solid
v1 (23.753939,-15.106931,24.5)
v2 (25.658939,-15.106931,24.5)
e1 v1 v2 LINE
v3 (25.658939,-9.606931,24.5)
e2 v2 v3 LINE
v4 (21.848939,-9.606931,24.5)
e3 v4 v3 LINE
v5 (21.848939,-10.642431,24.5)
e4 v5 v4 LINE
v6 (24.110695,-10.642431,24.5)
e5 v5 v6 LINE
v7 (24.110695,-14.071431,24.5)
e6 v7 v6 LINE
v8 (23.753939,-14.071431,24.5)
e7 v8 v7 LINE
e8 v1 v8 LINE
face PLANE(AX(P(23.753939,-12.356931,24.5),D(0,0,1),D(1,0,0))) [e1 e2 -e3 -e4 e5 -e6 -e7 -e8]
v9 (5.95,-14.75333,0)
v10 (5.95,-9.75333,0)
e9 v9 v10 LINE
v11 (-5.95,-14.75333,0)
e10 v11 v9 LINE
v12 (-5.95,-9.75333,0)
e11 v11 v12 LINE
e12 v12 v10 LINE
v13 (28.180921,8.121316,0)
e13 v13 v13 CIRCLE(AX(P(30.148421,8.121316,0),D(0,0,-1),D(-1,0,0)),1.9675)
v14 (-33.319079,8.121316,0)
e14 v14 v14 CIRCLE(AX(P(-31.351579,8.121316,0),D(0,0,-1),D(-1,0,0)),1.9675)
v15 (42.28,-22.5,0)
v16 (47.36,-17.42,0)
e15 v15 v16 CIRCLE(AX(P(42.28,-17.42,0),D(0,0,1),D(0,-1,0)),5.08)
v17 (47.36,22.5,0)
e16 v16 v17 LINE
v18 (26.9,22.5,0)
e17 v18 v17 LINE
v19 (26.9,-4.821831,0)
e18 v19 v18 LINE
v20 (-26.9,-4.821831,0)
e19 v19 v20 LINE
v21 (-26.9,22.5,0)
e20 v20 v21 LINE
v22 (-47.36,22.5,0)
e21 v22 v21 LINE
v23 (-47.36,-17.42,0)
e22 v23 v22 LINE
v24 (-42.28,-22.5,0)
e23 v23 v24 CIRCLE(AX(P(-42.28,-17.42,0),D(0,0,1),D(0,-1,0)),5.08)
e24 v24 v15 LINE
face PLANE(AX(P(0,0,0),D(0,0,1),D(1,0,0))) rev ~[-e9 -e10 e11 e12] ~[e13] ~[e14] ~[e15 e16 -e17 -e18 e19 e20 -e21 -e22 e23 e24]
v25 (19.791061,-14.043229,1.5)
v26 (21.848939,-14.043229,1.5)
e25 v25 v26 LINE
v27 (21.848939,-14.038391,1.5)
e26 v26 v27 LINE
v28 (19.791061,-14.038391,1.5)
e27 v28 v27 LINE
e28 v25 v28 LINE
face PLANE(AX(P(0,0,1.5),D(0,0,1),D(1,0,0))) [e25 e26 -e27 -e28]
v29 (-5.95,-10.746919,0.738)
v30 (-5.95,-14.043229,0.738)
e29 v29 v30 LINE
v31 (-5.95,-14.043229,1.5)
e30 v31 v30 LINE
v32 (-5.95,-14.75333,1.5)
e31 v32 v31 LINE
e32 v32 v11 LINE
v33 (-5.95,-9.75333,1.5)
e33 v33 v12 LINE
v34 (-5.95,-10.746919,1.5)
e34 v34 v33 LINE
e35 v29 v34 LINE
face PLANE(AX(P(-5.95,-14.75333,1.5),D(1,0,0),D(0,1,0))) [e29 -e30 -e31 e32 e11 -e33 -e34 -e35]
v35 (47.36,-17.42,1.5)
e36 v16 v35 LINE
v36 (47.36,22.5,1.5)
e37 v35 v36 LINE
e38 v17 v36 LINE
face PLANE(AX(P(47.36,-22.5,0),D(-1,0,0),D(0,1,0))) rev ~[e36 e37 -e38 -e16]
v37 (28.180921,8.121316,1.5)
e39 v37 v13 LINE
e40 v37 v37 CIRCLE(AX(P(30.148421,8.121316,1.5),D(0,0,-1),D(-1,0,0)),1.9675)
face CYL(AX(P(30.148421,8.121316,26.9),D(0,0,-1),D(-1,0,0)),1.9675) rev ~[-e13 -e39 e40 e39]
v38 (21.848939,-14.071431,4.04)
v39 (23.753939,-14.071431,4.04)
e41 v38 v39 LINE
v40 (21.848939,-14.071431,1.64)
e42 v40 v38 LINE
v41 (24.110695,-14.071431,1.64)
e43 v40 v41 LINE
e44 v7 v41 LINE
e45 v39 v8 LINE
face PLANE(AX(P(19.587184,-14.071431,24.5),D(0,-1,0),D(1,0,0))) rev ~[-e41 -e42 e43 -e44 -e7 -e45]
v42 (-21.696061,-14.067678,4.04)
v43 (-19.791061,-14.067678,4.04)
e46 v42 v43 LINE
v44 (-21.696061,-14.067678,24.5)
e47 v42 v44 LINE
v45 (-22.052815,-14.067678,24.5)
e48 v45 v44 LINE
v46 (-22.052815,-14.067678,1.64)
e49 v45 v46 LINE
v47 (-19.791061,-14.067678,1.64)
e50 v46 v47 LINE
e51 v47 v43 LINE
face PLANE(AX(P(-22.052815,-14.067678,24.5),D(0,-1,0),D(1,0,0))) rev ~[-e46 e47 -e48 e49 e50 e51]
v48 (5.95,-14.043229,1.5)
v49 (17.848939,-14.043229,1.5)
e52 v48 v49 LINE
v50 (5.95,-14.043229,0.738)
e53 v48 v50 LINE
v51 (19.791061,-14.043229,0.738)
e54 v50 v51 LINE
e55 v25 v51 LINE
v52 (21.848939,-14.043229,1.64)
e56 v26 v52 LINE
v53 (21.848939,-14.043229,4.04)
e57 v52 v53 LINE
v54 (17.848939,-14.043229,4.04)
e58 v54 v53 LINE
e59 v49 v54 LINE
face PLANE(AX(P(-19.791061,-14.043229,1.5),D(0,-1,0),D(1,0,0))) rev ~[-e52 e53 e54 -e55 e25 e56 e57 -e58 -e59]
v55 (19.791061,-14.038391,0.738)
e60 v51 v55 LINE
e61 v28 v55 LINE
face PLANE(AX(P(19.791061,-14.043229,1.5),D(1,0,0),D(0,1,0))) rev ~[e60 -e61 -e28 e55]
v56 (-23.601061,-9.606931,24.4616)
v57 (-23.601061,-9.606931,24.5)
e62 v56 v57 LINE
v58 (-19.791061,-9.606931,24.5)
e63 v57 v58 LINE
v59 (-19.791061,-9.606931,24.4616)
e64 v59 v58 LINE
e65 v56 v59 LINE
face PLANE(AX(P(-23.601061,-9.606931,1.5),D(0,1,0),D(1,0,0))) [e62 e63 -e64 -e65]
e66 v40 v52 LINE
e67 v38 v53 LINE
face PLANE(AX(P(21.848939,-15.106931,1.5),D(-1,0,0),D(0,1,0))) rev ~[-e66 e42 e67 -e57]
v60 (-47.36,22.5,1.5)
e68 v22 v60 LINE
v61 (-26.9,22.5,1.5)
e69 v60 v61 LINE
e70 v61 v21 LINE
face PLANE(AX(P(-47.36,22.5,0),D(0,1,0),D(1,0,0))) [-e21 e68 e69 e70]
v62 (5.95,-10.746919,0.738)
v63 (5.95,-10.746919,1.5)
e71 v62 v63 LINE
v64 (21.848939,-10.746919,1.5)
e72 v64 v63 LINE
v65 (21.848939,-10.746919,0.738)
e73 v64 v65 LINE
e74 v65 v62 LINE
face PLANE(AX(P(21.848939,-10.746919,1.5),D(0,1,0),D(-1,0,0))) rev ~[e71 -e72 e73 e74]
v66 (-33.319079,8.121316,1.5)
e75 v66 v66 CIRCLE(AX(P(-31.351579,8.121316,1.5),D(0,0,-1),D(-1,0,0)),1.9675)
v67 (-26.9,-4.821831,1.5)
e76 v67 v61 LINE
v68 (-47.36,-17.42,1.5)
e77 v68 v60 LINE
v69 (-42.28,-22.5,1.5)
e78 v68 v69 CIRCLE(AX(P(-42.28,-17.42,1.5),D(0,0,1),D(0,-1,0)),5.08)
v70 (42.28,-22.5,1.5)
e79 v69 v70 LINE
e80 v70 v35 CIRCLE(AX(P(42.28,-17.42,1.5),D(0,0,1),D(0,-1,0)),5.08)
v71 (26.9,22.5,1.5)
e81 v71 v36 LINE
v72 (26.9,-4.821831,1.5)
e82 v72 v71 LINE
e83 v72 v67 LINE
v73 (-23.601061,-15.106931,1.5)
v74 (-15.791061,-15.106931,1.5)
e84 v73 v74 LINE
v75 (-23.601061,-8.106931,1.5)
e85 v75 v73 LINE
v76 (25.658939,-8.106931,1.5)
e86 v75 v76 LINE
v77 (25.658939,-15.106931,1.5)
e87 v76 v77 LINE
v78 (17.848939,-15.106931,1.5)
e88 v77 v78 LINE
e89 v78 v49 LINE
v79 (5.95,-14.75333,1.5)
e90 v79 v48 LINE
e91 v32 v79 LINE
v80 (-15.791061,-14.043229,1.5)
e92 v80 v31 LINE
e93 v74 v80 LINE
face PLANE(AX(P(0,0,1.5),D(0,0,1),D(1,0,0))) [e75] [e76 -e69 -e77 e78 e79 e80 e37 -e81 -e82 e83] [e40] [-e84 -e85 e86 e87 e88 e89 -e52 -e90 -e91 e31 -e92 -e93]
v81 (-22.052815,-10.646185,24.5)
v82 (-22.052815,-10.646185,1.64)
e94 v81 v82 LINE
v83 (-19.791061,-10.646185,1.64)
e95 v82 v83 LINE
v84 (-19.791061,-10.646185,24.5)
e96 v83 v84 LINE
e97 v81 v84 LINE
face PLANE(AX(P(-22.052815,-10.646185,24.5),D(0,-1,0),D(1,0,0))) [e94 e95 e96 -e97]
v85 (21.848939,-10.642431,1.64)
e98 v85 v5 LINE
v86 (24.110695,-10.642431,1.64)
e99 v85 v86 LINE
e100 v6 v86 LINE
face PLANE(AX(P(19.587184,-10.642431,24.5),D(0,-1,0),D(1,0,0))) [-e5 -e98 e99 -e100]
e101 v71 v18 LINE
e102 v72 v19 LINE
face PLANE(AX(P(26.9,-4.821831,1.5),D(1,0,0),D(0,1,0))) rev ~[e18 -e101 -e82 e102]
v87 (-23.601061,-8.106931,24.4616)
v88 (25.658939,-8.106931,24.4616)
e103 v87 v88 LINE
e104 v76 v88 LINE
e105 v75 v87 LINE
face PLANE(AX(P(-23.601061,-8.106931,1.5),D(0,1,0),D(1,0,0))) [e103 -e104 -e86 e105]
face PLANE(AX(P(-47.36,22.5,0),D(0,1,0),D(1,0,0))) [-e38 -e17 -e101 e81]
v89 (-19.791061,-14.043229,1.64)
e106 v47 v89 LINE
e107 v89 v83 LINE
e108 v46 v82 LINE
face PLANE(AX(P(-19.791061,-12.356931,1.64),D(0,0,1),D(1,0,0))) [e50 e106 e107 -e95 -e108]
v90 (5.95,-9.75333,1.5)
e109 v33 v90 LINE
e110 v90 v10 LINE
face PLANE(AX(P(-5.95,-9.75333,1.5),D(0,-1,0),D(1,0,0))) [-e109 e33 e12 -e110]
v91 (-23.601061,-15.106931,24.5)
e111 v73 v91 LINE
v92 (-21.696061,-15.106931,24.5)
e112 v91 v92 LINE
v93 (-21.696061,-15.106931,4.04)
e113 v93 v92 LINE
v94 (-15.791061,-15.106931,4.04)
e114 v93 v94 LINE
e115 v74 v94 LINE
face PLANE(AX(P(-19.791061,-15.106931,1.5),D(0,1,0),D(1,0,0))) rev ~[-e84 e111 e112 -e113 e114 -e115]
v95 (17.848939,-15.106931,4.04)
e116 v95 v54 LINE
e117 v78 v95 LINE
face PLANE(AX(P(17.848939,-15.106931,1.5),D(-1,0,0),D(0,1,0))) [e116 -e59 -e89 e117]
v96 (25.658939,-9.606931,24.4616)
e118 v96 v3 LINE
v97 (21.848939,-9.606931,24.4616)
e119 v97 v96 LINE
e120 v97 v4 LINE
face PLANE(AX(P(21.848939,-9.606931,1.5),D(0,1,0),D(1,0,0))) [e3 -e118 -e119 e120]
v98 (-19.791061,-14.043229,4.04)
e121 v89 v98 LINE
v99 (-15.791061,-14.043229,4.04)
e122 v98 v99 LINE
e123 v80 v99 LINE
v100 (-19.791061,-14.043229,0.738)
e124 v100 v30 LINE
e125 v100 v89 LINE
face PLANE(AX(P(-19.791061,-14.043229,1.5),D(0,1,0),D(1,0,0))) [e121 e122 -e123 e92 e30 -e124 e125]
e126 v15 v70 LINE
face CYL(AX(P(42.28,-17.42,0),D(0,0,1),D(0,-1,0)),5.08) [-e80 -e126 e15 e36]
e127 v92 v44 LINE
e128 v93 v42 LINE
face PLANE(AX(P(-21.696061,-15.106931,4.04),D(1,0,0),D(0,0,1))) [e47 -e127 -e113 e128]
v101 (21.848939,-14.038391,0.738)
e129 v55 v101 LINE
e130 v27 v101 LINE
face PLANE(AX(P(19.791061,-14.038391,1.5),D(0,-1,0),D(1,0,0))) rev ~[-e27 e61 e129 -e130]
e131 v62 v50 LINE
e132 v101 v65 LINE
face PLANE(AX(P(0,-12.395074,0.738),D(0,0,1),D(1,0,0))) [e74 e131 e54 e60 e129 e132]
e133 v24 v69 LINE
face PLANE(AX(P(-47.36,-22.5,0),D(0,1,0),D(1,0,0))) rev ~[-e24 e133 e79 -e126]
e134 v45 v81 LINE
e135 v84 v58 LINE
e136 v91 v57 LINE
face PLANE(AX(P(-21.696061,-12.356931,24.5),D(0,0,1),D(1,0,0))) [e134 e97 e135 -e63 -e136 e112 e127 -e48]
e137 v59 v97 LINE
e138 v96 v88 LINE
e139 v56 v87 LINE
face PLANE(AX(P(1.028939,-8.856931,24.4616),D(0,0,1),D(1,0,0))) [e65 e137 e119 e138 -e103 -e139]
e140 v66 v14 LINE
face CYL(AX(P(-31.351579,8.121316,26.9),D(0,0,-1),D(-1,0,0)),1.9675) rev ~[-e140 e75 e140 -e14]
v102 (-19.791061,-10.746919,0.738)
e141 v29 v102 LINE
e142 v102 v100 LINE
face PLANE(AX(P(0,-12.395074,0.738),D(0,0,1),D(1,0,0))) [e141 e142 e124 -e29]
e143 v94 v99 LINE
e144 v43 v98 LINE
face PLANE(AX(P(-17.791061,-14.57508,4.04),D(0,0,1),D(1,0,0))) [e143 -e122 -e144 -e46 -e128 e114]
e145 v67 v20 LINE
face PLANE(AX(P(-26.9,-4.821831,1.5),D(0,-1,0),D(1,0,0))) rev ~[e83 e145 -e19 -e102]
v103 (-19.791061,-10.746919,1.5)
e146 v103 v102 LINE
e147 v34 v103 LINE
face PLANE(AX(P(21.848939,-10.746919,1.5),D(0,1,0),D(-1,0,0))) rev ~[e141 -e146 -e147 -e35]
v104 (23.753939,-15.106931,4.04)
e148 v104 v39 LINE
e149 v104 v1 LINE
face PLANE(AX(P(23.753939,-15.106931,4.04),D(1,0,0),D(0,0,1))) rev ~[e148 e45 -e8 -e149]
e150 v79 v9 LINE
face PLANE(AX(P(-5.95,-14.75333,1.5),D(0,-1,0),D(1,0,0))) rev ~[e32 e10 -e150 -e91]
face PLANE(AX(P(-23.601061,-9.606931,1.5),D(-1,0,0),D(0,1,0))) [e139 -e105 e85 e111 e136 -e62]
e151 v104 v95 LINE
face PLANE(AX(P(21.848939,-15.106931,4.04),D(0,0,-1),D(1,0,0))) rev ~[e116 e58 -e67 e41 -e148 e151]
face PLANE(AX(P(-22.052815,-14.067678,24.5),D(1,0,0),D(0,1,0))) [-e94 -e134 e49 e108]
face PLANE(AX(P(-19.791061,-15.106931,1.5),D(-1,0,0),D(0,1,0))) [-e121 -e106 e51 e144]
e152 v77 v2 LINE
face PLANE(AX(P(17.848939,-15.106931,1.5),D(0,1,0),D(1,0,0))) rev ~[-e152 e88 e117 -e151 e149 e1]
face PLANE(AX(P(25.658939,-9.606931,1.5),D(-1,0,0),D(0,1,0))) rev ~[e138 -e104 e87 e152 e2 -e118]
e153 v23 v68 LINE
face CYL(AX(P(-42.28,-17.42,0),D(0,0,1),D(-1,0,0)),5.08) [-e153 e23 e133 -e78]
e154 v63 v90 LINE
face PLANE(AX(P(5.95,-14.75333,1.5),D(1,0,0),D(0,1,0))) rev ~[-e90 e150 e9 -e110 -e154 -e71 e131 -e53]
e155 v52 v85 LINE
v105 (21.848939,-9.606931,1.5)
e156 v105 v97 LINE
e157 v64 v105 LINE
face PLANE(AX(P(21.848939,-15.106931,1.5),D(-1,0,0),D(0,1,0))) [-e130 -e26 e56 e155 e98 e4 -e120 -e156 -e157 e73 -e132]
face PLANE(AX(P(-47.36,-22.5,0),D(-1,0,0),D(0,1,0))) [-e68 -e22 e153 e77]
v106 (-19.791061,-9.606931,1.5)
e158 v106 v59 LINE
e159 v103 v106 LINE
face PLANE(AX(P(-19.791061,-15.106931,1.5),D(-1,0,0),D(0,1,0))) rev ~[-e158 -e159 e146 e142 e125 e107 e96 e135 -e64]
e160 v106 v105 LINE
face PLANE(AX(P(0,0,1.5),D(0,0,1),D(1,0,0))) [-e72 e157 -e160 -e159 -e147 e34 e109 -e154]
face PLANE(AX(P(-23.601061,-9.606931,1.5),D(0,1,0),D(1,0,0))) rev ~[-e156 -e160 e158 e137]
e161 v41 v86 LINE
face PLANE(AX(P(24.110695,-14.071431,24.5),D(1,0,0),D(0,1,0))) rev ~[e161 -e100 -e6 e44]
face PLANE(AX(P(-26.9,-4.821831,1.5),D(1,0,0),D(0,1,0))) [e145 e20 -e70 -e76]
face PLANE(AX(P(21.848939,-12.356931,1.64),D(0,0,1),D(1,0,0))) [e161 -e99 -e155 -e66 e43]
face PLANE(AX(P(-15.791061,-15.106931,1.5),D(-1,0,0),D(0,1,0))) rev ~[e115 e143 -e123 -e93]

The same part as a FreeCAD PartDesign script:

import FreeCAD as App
import Part
import Sketcher

V = App.Vector
Q = App.Units.Quantity


def edges_at(feature, points):
    """Names of the edges that pass closest to the given points."""
    edges = feature.Shape.Edges
    near = lambda p: min(range(len(edges)), key=lambda i: edges[i].distToShape(Part.Vertex(*p))[0])
    return sorted({f"Edge{near(p) + 1}" for p in points})

doc = App.newDocument("Part")
body = doc.addObject("PartDesign::Body", "Body")

# Sketch on XY plane
sketch1 = body.newObject("Sketcher::SketchObject", "Sketch")
sketch1.AttachmentSupport = (doc.getObject("XY_Plane"), [""])
sketch1.MapMode = "FlatFace"
sketch1.addGeometry([
    Part.LineSegment(V(-47, 22, 0), V(-47, -22, 0)),
    Part.LineSegment(V(-47, -22, 0), V(47, -22, 0)),
    Part.LineSegment(V(47, -22, 0), V(47, 22, 0)),
    Part.LineSegment(V(47, 22, 0), V(-47, 22, 0)),
], False)
sketch1.addConstraint([
    Sketcher.Constraint("Coincident", 0, 2, 1, 1),
    Sketcher.Constraint("Coincident", 1, 2, 2, 1),
    Sketcher.Constraint("Coincident", 2, 2, 3, 1),
    Sketcher.Constraint("Coincident", 3, 2, 0, 1),
    Sketcher.Constraint("Vertical", 0),
    Sketcher.Constraint("Horizontal", 1),
    Sketcher.Constraint("Vertical", 2),
    Sketcher.Constraint("Horizontal", 3),
    Sketcher.Constraint("Symmetric", 0, 2, 2, 2, -1, 1),
    Sketcher.Constraint("DistanceX", 1, 1, 1, 2, Q("94.72 mm")),
    Sketcher.Constraint("DistanceY", 0, 2, 0, 1, Q("45 mm")),
])
pad1 = body.newObject("PartDesign::Pad", "Pad")
pad1.Profile = sketch1
pad1.Length = 1.5

# Sketch on XY plane
sketch2 = body.newObject("Sketcher::SketchObject", "Sketch001")
sketch2.AttachmentSupport = (doc.getObject("XY_Plane"), [""])
sketch2.MapMode = "FlatFace"
sketch2.AttachmentOffset = App.Placement(V(0, 0, 1.5), App.Rotation())
sketch2.addGeometry(Part.Circle(V(-31.4, 8.1, 0), V(0, 0, 1), 2), False)
sketch2.addConstraint([
    Sketcher.Constraint("Diameter", 0, Q("3.935 mm")),
    Sketcher.Constraint("DistanceX", 0, 3, -1, 1, Q("31.351579 mm")),
    Sketcher.Constraint("DistanceY", -1, 1, 0, 3, Q("8.121316 mm")),
])
doc.recompute()
hole = body.newObject("PartDesign::Hole", "Hole")
hole.Profile = sketch2
hole.ThreadType = "None"
hole.Diameter = 3.935
hole.DepthType = "Dimension"
hole.Depth = Q("1 in")
hole.DrillPoint = "Angled"
hole.DrillPointAngle = 118

# Sketch on XY plane
sketch3 = body.newObject("Sketcher::SketchObject", "Sketch002")
sketch3.AttachmentSupport = (doc.getObject("XY_Plane"), [""])
sketch3.MapMode = "FlatFace"
sketch3.AttachmentOffset = App.Placement(V(0, 0, 1.5), App.Rotation())
sketch3.addGeometry(Part.Circle(V(30.1, 8.1, 0), V(0, 0, 1), 2), False)
sketch3.addConstraint([
    Sketcher.Constraint("Diameter", 0, Q("3.935 mm")),
    Sketcher.Constraint("DistanceX", -1, 1, 0, 3, Q("30.148421 mm")),
    Sketcher.Constraint("DistanceY", -1, 1, 0, 3, Q("8.121316 mm")),
])
doc.recompute()
hole2 = body.newObject("PartDesign::Hole", "Hole001")
hole2.Profile = sketch3
hole2.ThreadType = "None"
hole2.Diameter = 3.935
hole2.DepthType = "Dimension"
hole2.Depth = Q("1 in")
hole2.DrillPoint = "Angled"
hole2.DrillPointAngle = 118

# Sketch on XY plane
sketch4 = body.newObject("Sketcher::SketchObject", "Sketch003")
sketch4.AttachmentSupport = (doc.getObject("XY_Plane"), [""])
sketch4.MapMode = "FlatFace"
sketch4.AttachmentOffset = App.Placement(V(0, 0, 1.5), App.Rotation())
sketch4.addGeometry([
    Part.LineSegment(V(-25, 22, 0), V(-25, 10, 0)),
    Part.LineSegment(V(-25, 10, 0), V(25, 10, 0)),
    Part.LineSegment(V(25, 10, 0), V(25, 22, 0)),
    Part.LineSegment(V(25, 22, 0), V(-25, 22, 0)),
], False)
sketch4.addConstraint([
    Sketcher.Constraint("Coincident", 0, 2, 1, 1),
    Sketcher.Constraint("Coincident", 1, 2, 2, 1),
    Sketcher.Constraint("Coincident", 2, 2, 3, 1),
    Sketcher.Constraint("Coincident", 3, 2, 0, 1),
    Sketcher.Constraint("Vertical", 0),
    Sketcher.Constraint("Horizontal", 1),
    Sketcher.Constraint("Vertical", 2),
    Sketcher.Constraint("Horizontal", 3),
    Sketcher.Constraint("DistanceX", 1, 1, 1, 2, Q("50 mm")),
    Sketcher.Constraint("DistanceY", 0, 2, 0, 1, Q("12.741579 mm")),
    Sketcher.Constraint("DistanceX", 0, 2, -1, 1, Q("25 mm")),
    Sketcher.Constraint("DistanceY", -1, 1, 2, 2, Q("22.5 mm")),
])
pocket1 = body.newObject("PartDesign::Pocket", "Pocket")
pocket1.Profile = sketch4
pocket1.Length = Q("1 in")
doc.recompute()

fillet = body.newObject("PartDesign::Fillet", "Fillet")
fillet.Base = (pocket1, edges_at(pocket1, [(-47.36, -22.5, 0.75), (47.36, -22.5, 0.75)]))
fillet.Radius = Q("0.2 in")

# Sketch on XY plane
sketch5 = body.newObject("Sketcher::SketchObject", "Sketch004")
sketch5.AttachmentSupport = (doc.getObject("XY_Plane"), [""])
sketch5.MapMode = "FlatFace"
sketch5.AttachmentOffset = App.Placement(V(0, 0, 1.5), App.Rotation())
sketch5.addGeometry([
    Part.LineSegment(V(-25, 10, 0), V(-25, -5, 0)),
    Part.LineSegment(V(-25, -5, 0), V(25, -5, 0)),
    Part.LineSegment(V(25, -5, 0), V(25, 10, 0)),
    Part.LineSegment(V(25, 10, 0), V(-25, 10, 0)),
], False)
sketch5.addConstraint([
    Sketcher.Constraint("Coincident", 0, 2, 1, 1),
    Sketcher.Constraint("Coincident", 1, 2, 2, 1),
    Sketcher.Constraint("Coincident", 2, 2, 3, 1),
    Sketcher.Constraint("Coincident", 3, 2, 0, 1),
    Sketcher.Constraint("Vertical", 0),
    Sketcher.Constraint("Horizontal", 1),
    Sketcher.Constraint("Vertical", 2),
    Sketcher.Constraint("Horizontal", 3),
    Sketcher.Constraint("DistanceY", 0, 2, 0, 1, Q("0.6 in")),
    Sketcher.Constraint("DistanceX", 1, 1, 1, 2, Q("50 mm")),
    Sketcher.Constraint("DistanceX", 0, 2, -1, 1, Q("25 mm")),
    Sketcher.Constraint("DistanceY", 0, 2, -1, 1, Q("4.821831 mm")),
])
pocket2 = body.newObject("PartDesign::Pocket", "Pocket001")
pocket2.Profile = sketch5
pocket2.Length = Q("1 in")

# Sketch on XY plane
sketch6 = body.newObject("Sketcher::SketchObject", "Sketch005")
sketch6.AttachmentSupport = (doc.getObject("XY_Plane"), [""])
sketch6.MapMode = "FlatFace"
sketch6.AttachmentOffset = App.Placement(V(0, 0, 1.5), App.Rotation())
sketch6.addGeometry([
    Part.LineSegment(V(-6, -10, 0), V(-6, -15, 0)),
    Part.LineSegment(V(-6, -15, 0), V(6, -15, 0)),
    Part.LineSegment(V(6, -15, 0), V(6, -10, 0)),
    Part.LineSegment(V(6, -10, 0), V(-6, -10, 0)),
], False)
sketch6.addConstraint([
    Sketcher.Constraint("Coincident", 0, 2, 1, 1),
    Sketcher.Constraint("Coincident", 1, 2, 2, 1),
    Sketcher.Constraint("Coincident", 2, 2, 3, 1),
    Sketcher.Constraint("Coincident", 3, 2, 0, 1),
    Sketcher.Constraint("Vertical", 0),
    Sketcher.Constraint("Horizontal", 1),
    Sketcher.Constraint("Vertical", 2),
    Sketcher.Constraint("Horizontal", 3),
    Sketcher.Constraint("DistanceX", 1, 1, 1, 2, Q("11.9 mm")),
    Sketcher.Constraint("DistanceY", 0, 2, 0, 1, Q("5 mm")),
    Sketcher.Constraint("DistanceX", 0, 2, -1, 1, Q("5.95 mm")),
    Sketcher.Constraint("DistanceY", 0, 2, -1, 1, Q("14.75333 mm")),
])
pocket3 = body.newObject("PartDesign::Pocket", "Pocket002")
pocket3.Profile = sketch6
pocket3.Length = Q("1 in")

# Sketch on XY plane
sketch7 = body.newObject("Sketcher::SketchObject", "Sketch006")
sketch7.AttachmentSupport = (doc.getObject("XY_Plane"), [""])
sketch7.MapMode = "FlatFace"
sketch7.AttachmentOffset = App.Placement(V(0, 0, 1.5), App.Rotation())
sketch7.addGeometry([
    Part.LineSegment(V(-23.6, -9.6, 0), V(-23.6, -15.1, 0)),  # 0
    Part.LineSegment(V(-23.6, -15.1, 0), V(-19.8, -15.1, 0)),  # 1
    Part.LineSegment(V(-19.8, -15.1, 0), V(-19.8, -9.6, 0)),  # 2
    Part.LineSegment(V(-19.8, -9.6, 0), V(-23.6, -9.6, 0)),  # 3
    Part.LineSegment(V(21.8, -9.6, 0), V(21.8, -15.1, 0)),  # 4
    Part.LineSegment(V(21.8, -15.1, 0), V(25.7, -15.1, 0)),  # 5
    Part.LineSegment(V(25.7, -15.1, 0), V(25.7, -9.6, 0)),  # 6
    Part.LineSegment(V(25.7, -9.6, 0), V(21.8, -9.6, 0)),  # 7
], False)
sketch7.addConstraint([
    Sketcher.Constraint("Coincident", 0, 2, 1, 1),
    Sketcher.Constraint("Coincident", 1, 2, 2, 1),
    Sketcher.Constraint("Coincident", 2, 2, 3, 1),
    Sketcher.Constraint("Coincident", 3, 2, 0, 1),
    Sketcher.Constraint("Coincident", 4, 2, 5, 1),
    Sketcher.Constraint("Coincident", 5, 2, 6, 1),
    Sketcher.Constraint("Coincident", 6, 2, 7, 1),
    Sketcher.Constraint("Coincident", 7, 2, 4, 1),
    Sketcher.Constraint("Vertical", 0),
    Sketcher.Constraint("Horizontal", 1),
    Sketcher.Constraint("Vertical", 2),
    Sketcher.Constraint("Horizontal", 3),
    Sketcher.Constraint("Vertical", 4),
    Sketcher.Constraint("Horizontal", 5),
    Sketcher.Constraint("Vertical", 6),
    Sketcher.Constraint("Horizontal", 7),
    Sketcher.Constraint("Horizontal", 1, 2, 4, 2),
    Sketcher.Constraint("Horizontal", 3, 2, 6, 2),
    Sketcher.Constraint("Equal", 3, 5),
    Sketcher.Constraint("DistanceX", 1, 1, 1, 2, Q("0.15 in")),
    Sketcher.Constraint("DistanceY", 0, 2, 0, 1, Q("5.5 mm")),
    Sketcher.Constraint("DistanceX", 1, 2, 4, 2, Q("41.64 mm")),
    Sketcher.Constraint("DistanceX", 0, 2, -1, 1, Q("23.601061 mm")),
    Sketcher.Constraint("DistanceY", 0, 2, -1, 1, Q("15.106931 mm")),
])
pad2 = body.newObject("PartDesign::Pad", "Pad001")
pad2.Profile = sketch7
pad2.Length = 23

# Sketch on XY plane
sketch8 = body.newObject("Sketcher::SketchObject", "Sketch007")
sketch8.AttachmentSupport = (doc.getObject("XY_Plane"), [""])
sketch8.MapMode = "FlatFace"
sketch8.AttachmentOffset = App.Placement(V(0, 0, 24.5), App.Rotation())
sketch8.addGeometry([
    Part.LineSegment(V(-22.1, -10.6, 0), V(-22.1, -14.1, 0)),
    Part.LineSegment(V(-22.1, -14.1, 0), V(-17.5, -14.1, 0)),
    Part.LineSegment(V(-17.5, -14.1, 0), V(-17.5, -10.6, 0)),
    Part.LineSegment(V(-17.5, -10.6, 0), V(-22.1, -10.6, 0)),
], False)
sketch8.addConstraint([
    Sketcher.Constraint("Coincident", 0, 2, 1, 1),
    Sketcher.Constraint("Coincident", 1, 2, 2, 1),
    Sketcher.Constraint("Coincident", 2, 2, 3, 1),
    Sketcher.Constraint("Coincident", 3, 2, 0, 1),
    Sketcher.Constraint("Vertical", 0),
    Sketcher.Constraint("Horizontal", 1),
    Sketcher.Constraint("Vertical", 2),
    Sketcher.Constraint("Horizontal", 3),
    Sketcher.Constraint("DistanceX", 1, 1, 1, 2, Q("4.523509 mm")),
    Sketcher.Constraint("DistanceY", 0, 2, 0, 1, Q("3.421493 mm")),
    Sketcher.Constraint("DistanceX", 0, 2, -1, 1, Q("22.052815 mm")),
    Sketcher.Constraint("DistanceY", 0, 2, -1, 1, Q("14.067678 mm")),
])
pocket4 = body.newObject("PartDesign::Pocket", "Pocket003")
pocket4.Profile = sketch8
pocket4.Length = Q("0.9 in")

# Sketch on XY plane
sketch9 = body.newObject("Sketcher::SketchObject", "Sketch008")
sketch9.AttachmentSupport = (doc.getObject("XY_Plane"), [""])
sketch9.MapMode = "FlatFace"
sketch9.AttachmentOffset = App.Placement(V(0, 0, 24.5), App.Rotation())
sketch9.addGeometry([
    Part.LineSegment(V(19.6, -10.6, 0), V(19.6, -14.1, 0)),
    Part.LineSegment(V(19.6, -14.1, 0), V(24.1, -14.1, 0)),
    Part.LineSegment(V(24.1, -14.1, 0), V(24.1, -10.6, 0)),
    Part.LineSegment(V(24.1, -10.6, 0), V(19.6, -10.6, 0)),
], False)
sketch9.addConstraint([
    Sketcher.Constraint("Coincident", 0, 2, 1, 1),
    Sketcher.Constraint("Coincident", 1, 2, 2, 1),
    Sketcher.Constraint("Coincident", 2, 2, 3, 1),
    Sketcher.Constraint("Coincident", 3, 2, 0, 1),
    Sketcher.Constraint("Vertical", 0),
    Sketcher.Constraint("Horizontal", 1),
    Sketcher.Constraint("Vertical", 2),
    Sketcher.Constraint("Horizontal", 3),
    Sketcher.Constraint("DistanceY", 0, 2, 0, 1, Q("0.135 in")),
    Sketcher.Constraint("DistanceX", 1, 1, 1, 2, Q("4.523511 mm")),
    Sketcher.Constraint("DistanceY", 0, 2, -1, 1, Q("14.071431 mm")),
    Sketcher.Constraint("DistanceX", -1, 1, 0, 2, Q("19.587184 mm")),
])
pocket5 = body.newObject("PartDesign::Pocket", "Pocket004")
pocket5.Profile = sketch9
pocket5.Length = Q("0.9 in")

# Sketch on XY plane
sketch10 = body.newObject("Sketcher::SketchObject", "Sketch009")
sketch10.AttachmentSupport = (doc.getObject("XY_Plane"), [""])
sketch10.MapMode = "FlatFace"
sketch10.AttachmentOffset = App.Placement(V(0, 0, 1.5), App.Rotation())
sketch10.addGeometry([
    Part.LineSegment(V(-19.791061, -10.746919, 0), V(-19.791061, -14.043229, 0)),  # 0
    Part.LineSegment(V(-19.791061, -14.043229, 0), V(19.791061, -14.043229, 0)),  # 1
    Part.LineSegment(V(19.791061, -14.043229, 0), V(19.791061, -14.038391, 0)),  # 2
    Part.LineSegment(V(19.791061, -14.038391, 0), V(21.848939, -14.038391, 0)),  # 3
    Part.LineSegment(V(21.848939, -14.038391, 0), V(21.848939, -10.746919, 0)),  # 4
    Part.LineSegment(V(21.848939, -10.746919, 0), V(-19.791061, -10.746919, 0)),  # 5
], False)
sketch10.addConstraint([
    Sketcher.Constraint("Coincident", 0, 2, 1, 1),
    Sketcher.Constraint("Coincident", 1, 2, 2, 1),
    Sketcher.Constraint("Coincident", 2, 2, 3, 1),
    Sketcher.Constraint("Coincident", 3, 2, 4, 1),
    Sketcher.Constraint("Coincident", 4, 2, 5, 1),
    Sketcher.Constraint("Coincident", 5, 2, 0, 1),
    Sketcher.Constraint("Vertical", 0),
    Sketcher.Constraint("Horizontal", 1),
    Sketcher.Constraint("Vertical", 2),
    Sketcher.Constraint("Horizontal", 3),
    Sketcher.Constraint("Vertical", 4),
    Sketcher.Constraint("Horizontal", 5),
    Sketcher.Constraint("DistanceX", 5, 2, 5, 1, Q("41.64 mm")),
    Sketcher.Constraint("DistanceX", 1, 1, 1, 2, Q("39.582121 mm")),
    Sketcher.Constraint("DistanceY", 0, 2, 0, 1, Q("3.296311 mm")),
    Sketcher.Constraint("DistanceY", 2, 1, 2, 2, Q("0.004838 mm")),
    Sketcher.Constraint("DistanceX", 0, 2, -1, 1, Q("19.791061 mm")),
    Sketcher.Constraint("DistanceY", 0, 2, -1, 1, Q("14.043229 mm")),
])
pocket6 = body.newObject("PartDesign::Pocket", "Pocket005")
pocket6.Profile = sketch10
pocket6.Length = Q("0.03 in")

# Sketch on XY plane
sketch11 = body.newObject("Sketcher::SketchObject", "Sketch010")
sketch11.AttachmentSupport = (doc.getObject("XY_Plane"), [""])
sketch11.MapMode = "FlatFace"
sketch11.AttachmentOffset = App.Placement(V(0, 0, 1.5), App.Rotation())
sketch11.addGeometry([
    Part.LineSegment(V(-23.6, -8.1, 0), V(-23.6, -9.6, 0)),
    Part.LineSegment(V(-23.6, -9.6, 0), V(25.7, -9.6, 0)),
    Part.LineSegment(V(25.7, -9.6, 0), V(25.7, -8.1, 0)),
    Part.LineSegment(V(25.7, -8.1, 0), V(-23.6, -8.1, 0)),
], False)
sketch11.addConstraint([
    Sketcher.Constraint("Coincident", 0, 2, 1, 1),
    Sketcher.Constraint("Coincident", 1, 2, 2, 1),
    Sketcher.Constraint("Coincident", 2, 2, 3, 1),
    Sketcher.Constraint("Coincident", 3, 2, 0, 1),
    Sketcher.Constraint("Vertical", 0),
    Sketcher.Constraint("Horizontal", 1),
    Sketcher.Constraint("Vertical", 2),
    Sketcher.Constraint("Horizontal", 3),
    Sketcher.Constraint("DistanceX", 1, 1, 1, 2, Q("49.26 mm")),
    Sketcher.Constraint("DistanceY", 0, 2, 0, 1, Q("1.5 mm")),
    Sketcher.Constraint("DistanceX", 0, 2, -1, 1, Q("23.601061 mm")),
    Sketcher.Constraint("DistanceY", 0, 2, -1, 1, Q("9.606931 mm")),
])
pad3 = body.newObject("PartDesign::Pad", "Pad002")
pad3.Profile = sketch11
pad3.Length = Q("0.904 in")

# Sketch on XY plane
sketch12 = body.newObject("Sketcher::SketchObject", "Sketch011")
sketch12.AttachmentSupport = (doc.getObject("XY_Plane"), [""])
sketch12.MapMode = "FlatFace"
sketch12.AttachmentOffset = App.Placement(V(0, 0, 1.5), App.Rotation())
sketch12.addGeometry([
    Part.LineSegment(V(-19.8, -14, 0), V(-19.8, -15.1, 0)),  # 0
    Part.LineSegment(V(-19.8, -15.1, 0), V(-15.8, -15.1, 0)),  # 1
    Part.LineSegment(V(-15.8, -15.1, 0), V(-15.8, -14, 0)),  # 2
    Part.LineSegment(V(-15.8, -14, 0), V(-19.8, -14, 0)),  # 3
    Part.LineSegment(V(17.8, -14, 0), V(17.8, -15.1, 0)),  # 4
    Part.LineSegment(V(17.8, -15.1, 0), V(21.8, -15.1, 0)),  # 5
    Part.LineSegment(V(21.8, -15.1, 0), V(21.8, -14, 0)),  # 6
    Part.LineSegment(V(21.8, -14, 0), V(17.8, -14, 0)),  # 7
], False)
sketch12.addConstraint([
    Sketcher.Constraint("Coincident", 0, 2, 1, 1),
    Sketcher.Constraint("Coincident", 1, 2, 2, 1),
    Sketcher.Constraint("Coincident", 2, 2, 3, 1),
    Sketcher.Constraint("Coincident", 3, 2, 0, 1),
    Sketcher.Constraint("Coincident", 4, 2, 5, 1),
    Sketcher.Constraint("Coincident", 5, 2, 6, 1),
    Sketcher.Constraint("Coincident", 6, 2, 7, 1),
    Sketcher.Constraint("Coincident", 7, 2, 4, 1),
    Sketcher.Constraint("Vertical", 0),
    Sketcher.Constraint("Horizontal", 1),
    Sketcher.Constraint("Vertical", 2),
    Sketcher.Constraint("Horizontal", 3),
    Sketcher.Constraint("Vertical", 4),
    Sketcher.Constraint("Horizontal", 5),
    Sketcher.Constraint("Vertical", 6),
    Sketcher.Constraint("Horizontal", 7),
    Sketcher.Constraint("Horizontal", 1, 2, 4, 2),
    Sketcher.Constraint("Horizontal", 3, 2, 6, 2),
    Sketcher.Constraint("Equal", 3, 5),
    Sketcher.Constraint("DistanceX", 1, 1, 1, 2, Q("4 mm")),
    Sketcher.Constraint("DistanceX", 1, 2, 4, 2, Q("33.64 mm")),
    Sketcher.Constraint("DistanceY", 0, 2, 0, 1, Q("1.063702 mm")),
    Sketcher.Constraint("DistanceX", 0, 2, -1, 1, Q("19.791061 mm")),
    Sketcher.Constraint("DistanceY", 0, 2, -1, 1, Q("15.106931 mm")),
])
pad4 = body.newObject("PartDesign::Pad", "Pad003")
pad4.Profile = sketch12
pad4.Length = Q("0.1 in")

# Sketch on XY plane
sketch13 = body.newObject("Sketcher::SketchObject", "Sketch012")
sketch13.AttachmentSupport = (doc.getObject("XY_Plane"), [""])
sketch13.MapMode = "FlatFace"
sketch13.AttachmentOffset = App.Placement(V(0, 0, 1.5), App.Rotation())
sketch13.addGeometry([
    Part.LineSegment(V(-26.9, 22.5, 0), V(-26.9, -4.8, 0)),  # 0
    Part.LineSegment(V(-26.9, -4.8, 0), V(-25, -4.8, 0)),  # 1
    Part.LineSegment(V(-25, -4.8, 0), V(-25, 22.5, 0)),  # 2
    Part.LineSegment(V(-25, 22.5, 0), V(-26.9, 22.5, 0)),  # 3
    Part.LineSegment(V(25, 22.5, 0), V(25, -4.8, 0)),  # 4
    Part.LineSegment(V(25, -4.8, 0), V(26.9, -4.8, 0)),  # 5
    Part.LineSegment(V(26.9, -4.8, 0), V(26.9, 22.5, 0)),  # 6
    Part.LineSegment(V(26.9, 22.5, 0), V(25, 22.5, 0)),  # 7
], False)
sketch13.addConstraint([
    Sketcher.Constraint("Coincident", 0, 2, 1, 1),
    Sketcher.Constraint("Coincident", 1, 2, 2, 1),
    Sketcher.Constraint("Coincident", 2, 2, 3, 1),
    Sketcher.Constraint("Coincident", 3, 2, 0, 1),
    Sketcher.Constraint("Coincident", 4, 2, 5, 1),
    Sketcher.Constraint("Coincident", 5, 2, 6, 1),
    Sketcher.Constraint("Coincident", 6, 2, 7, 1),
    Sketcher.Constraint("Coincident", 7, 2, 4, 1),
    Sketcher.Constraint("Vertical", 0),
    Sketcher.Constraint("Horizontal", 1),
    Sketcher.Constraint("Vertical", 2),
    Sketcher.Constraint("Horizontal", 3),
    Sketcher.Constraint("Vertical", 4),
    Sketcher.Constraint("Horizontal", 5),
    Sketcher.Constraint("Vertical", 6),
    Sketcher.Constraint("Horizontal", 7),
    Sketcher.Constraint("Symmetric", 1, 2, 4, 2, -2),
    Sketcher.Constraint("Symmetric", 3, 2, 6, 2, -2),
    Sketcher.Constraint("DistanceX", 1, 1, 1, 2, Q("1.9 mm")),
    Sketcher.Constraint("DistanceY", 0, 2, 0, 1, Q("27.321831 mm")),
    Sketcher.Constraint("DistanceX", 0, 2, -1, 1, Q("26.9 mm")),
    Sketcher.Constraint("DistanceY", -1, 1, 2, 2, Q("22.5 mm")),
])
pocket7 = body.newObject("PartDesign::Pocket", "Pocket006")
pocket7.Profile = sketch13
pocket7.Length = Q("1 in")

# Sketch on XZ plane
sketch14 = body.newObject("Sketcher::SketchObject", "Sketch013")
sketch14.AttachmentSupport = (doc.getObject("XZ_Plane"), [""])
sketch14.MapMode = "FlatFace"
sketch14.AttachmentOffset = App.Placement(V(0, 0, 15.106931), App.Rotation())
sketch14.addGeometry([
    Part.LineSegment(V(-21.7, 24.5, 0), V(-21.7, 4, 0)),
    Part.LineSegment(V(-21.7, 4, 0), V(-19.8, 4, 0)),
    Part.LineSegment(V(-19.8, 4, 0), V(-19.8, 24.5, 0)),
    Part.LineSegment(V(-19.8, 24.5, 0), V(-21.7, 24.5, 0)),
], False)
sketch14.addConstraint([
    Sketcher.Constraint("Coincident", 0, 2, 1, 1),
    Sketcher.Constraint("Coincident", 1, 2, 2, 1),
    Sketcher.Constraint("Coincident", 2, 2, 3, 1),
    Sketcher.Constraint("Coincident", 3, 2, 0, 1),
    Sketcher.Constraint("Vertical", 0),
    Sketcher.Constraint("Horizontal", 1),
    Sketcher.Constraint("Vertical", 2),
    Sketcher.Constraint("Horizontal", 3),
    Sketcher.Constraint("DistanceX", 1, 1, 1, 2, Q("0.075 in")),
    Sketcher.Constraint("DistanceY", 0, 2, 0, 1, Q("20.46 mm")),
    Sketcher.Constraint("DistanceY", -1, 1, 0, 2, Q("4.04 mm")),
    Sketcher.Constraint("DistanceX", 0, 2, -1, 1, Q("21.696061 mm")),
])
pocket8 = body.newObject("PartDesign::Pocket", "Pocket007")
pocket8.Profile = sketch14
pocket8.Length = Q("0.065 in")

# Sketch on XZ plane
sketch15 = body.newObject("Sketcher::SketchObject", "Sketch014")
sketch15.AttachmentSupport = (doc.getObject("XZ_Plane"), [""])
sketch15.MapMode = "FlatFace"
sketch15.AttachmentOffset = App.Placement(V(0, 0, 15.106931), App.Rotation())
sketch15.addGeometry([
    Part.LineSegment(V(21.8, 24.5, 0), V(21.8, 4, 0)),
    Part.LineSegment(V(21.8, 4, 0), V(23.8, 4, 0)),
    Part.LineSegment(V(23.8, 4, 0), V(23.8, 24.5, 0)),
    Part.LineSegment(V(23.8, 24.5, 0), V(21.8, 24.5, 0)),
], False)
sketch15.addConstraint([
    Sketcher.Constraint("Coincident", 0, 2, 1, 1),
    Sketcher.Constraint("Coincident", 1, 2, 2, 1),
    Sketcher.Constraint("Coincident", 2, 2, 3, 1),
    Sketcher.Constraint("Coincident", 3, 2, 0, 1),
    Sketcher.Constraint("Vertical", 0),
    Sketcher.Constraint("Horizontal", 1),
    Sketcher.Constraint("Vertical", 2),
    Sketcher.Constraint("Horizontal", 3),
    Sketcher.Constraint("DistanceX", 1, 1, 1, 2, Q("0.075 in")),
    Sketcher.Constraint("DistanceY", 0, 2, 0, 1, Q("20.46 mm")),
    Sketcher.Constraint("DistanceY", -1, 1, 0, 2, Q("4.04 mm")),
    Sketcher.Constraint("DistanceX", -1, 1, 0, 2, Q("21.848939 mm")),
])
pocket9 = body.newObject("PartDesign::Pocket", "Pocket008")
pocket9.Profile = sketch15
pocket9.Length = Q("0.12 in")

doc.recompute()
